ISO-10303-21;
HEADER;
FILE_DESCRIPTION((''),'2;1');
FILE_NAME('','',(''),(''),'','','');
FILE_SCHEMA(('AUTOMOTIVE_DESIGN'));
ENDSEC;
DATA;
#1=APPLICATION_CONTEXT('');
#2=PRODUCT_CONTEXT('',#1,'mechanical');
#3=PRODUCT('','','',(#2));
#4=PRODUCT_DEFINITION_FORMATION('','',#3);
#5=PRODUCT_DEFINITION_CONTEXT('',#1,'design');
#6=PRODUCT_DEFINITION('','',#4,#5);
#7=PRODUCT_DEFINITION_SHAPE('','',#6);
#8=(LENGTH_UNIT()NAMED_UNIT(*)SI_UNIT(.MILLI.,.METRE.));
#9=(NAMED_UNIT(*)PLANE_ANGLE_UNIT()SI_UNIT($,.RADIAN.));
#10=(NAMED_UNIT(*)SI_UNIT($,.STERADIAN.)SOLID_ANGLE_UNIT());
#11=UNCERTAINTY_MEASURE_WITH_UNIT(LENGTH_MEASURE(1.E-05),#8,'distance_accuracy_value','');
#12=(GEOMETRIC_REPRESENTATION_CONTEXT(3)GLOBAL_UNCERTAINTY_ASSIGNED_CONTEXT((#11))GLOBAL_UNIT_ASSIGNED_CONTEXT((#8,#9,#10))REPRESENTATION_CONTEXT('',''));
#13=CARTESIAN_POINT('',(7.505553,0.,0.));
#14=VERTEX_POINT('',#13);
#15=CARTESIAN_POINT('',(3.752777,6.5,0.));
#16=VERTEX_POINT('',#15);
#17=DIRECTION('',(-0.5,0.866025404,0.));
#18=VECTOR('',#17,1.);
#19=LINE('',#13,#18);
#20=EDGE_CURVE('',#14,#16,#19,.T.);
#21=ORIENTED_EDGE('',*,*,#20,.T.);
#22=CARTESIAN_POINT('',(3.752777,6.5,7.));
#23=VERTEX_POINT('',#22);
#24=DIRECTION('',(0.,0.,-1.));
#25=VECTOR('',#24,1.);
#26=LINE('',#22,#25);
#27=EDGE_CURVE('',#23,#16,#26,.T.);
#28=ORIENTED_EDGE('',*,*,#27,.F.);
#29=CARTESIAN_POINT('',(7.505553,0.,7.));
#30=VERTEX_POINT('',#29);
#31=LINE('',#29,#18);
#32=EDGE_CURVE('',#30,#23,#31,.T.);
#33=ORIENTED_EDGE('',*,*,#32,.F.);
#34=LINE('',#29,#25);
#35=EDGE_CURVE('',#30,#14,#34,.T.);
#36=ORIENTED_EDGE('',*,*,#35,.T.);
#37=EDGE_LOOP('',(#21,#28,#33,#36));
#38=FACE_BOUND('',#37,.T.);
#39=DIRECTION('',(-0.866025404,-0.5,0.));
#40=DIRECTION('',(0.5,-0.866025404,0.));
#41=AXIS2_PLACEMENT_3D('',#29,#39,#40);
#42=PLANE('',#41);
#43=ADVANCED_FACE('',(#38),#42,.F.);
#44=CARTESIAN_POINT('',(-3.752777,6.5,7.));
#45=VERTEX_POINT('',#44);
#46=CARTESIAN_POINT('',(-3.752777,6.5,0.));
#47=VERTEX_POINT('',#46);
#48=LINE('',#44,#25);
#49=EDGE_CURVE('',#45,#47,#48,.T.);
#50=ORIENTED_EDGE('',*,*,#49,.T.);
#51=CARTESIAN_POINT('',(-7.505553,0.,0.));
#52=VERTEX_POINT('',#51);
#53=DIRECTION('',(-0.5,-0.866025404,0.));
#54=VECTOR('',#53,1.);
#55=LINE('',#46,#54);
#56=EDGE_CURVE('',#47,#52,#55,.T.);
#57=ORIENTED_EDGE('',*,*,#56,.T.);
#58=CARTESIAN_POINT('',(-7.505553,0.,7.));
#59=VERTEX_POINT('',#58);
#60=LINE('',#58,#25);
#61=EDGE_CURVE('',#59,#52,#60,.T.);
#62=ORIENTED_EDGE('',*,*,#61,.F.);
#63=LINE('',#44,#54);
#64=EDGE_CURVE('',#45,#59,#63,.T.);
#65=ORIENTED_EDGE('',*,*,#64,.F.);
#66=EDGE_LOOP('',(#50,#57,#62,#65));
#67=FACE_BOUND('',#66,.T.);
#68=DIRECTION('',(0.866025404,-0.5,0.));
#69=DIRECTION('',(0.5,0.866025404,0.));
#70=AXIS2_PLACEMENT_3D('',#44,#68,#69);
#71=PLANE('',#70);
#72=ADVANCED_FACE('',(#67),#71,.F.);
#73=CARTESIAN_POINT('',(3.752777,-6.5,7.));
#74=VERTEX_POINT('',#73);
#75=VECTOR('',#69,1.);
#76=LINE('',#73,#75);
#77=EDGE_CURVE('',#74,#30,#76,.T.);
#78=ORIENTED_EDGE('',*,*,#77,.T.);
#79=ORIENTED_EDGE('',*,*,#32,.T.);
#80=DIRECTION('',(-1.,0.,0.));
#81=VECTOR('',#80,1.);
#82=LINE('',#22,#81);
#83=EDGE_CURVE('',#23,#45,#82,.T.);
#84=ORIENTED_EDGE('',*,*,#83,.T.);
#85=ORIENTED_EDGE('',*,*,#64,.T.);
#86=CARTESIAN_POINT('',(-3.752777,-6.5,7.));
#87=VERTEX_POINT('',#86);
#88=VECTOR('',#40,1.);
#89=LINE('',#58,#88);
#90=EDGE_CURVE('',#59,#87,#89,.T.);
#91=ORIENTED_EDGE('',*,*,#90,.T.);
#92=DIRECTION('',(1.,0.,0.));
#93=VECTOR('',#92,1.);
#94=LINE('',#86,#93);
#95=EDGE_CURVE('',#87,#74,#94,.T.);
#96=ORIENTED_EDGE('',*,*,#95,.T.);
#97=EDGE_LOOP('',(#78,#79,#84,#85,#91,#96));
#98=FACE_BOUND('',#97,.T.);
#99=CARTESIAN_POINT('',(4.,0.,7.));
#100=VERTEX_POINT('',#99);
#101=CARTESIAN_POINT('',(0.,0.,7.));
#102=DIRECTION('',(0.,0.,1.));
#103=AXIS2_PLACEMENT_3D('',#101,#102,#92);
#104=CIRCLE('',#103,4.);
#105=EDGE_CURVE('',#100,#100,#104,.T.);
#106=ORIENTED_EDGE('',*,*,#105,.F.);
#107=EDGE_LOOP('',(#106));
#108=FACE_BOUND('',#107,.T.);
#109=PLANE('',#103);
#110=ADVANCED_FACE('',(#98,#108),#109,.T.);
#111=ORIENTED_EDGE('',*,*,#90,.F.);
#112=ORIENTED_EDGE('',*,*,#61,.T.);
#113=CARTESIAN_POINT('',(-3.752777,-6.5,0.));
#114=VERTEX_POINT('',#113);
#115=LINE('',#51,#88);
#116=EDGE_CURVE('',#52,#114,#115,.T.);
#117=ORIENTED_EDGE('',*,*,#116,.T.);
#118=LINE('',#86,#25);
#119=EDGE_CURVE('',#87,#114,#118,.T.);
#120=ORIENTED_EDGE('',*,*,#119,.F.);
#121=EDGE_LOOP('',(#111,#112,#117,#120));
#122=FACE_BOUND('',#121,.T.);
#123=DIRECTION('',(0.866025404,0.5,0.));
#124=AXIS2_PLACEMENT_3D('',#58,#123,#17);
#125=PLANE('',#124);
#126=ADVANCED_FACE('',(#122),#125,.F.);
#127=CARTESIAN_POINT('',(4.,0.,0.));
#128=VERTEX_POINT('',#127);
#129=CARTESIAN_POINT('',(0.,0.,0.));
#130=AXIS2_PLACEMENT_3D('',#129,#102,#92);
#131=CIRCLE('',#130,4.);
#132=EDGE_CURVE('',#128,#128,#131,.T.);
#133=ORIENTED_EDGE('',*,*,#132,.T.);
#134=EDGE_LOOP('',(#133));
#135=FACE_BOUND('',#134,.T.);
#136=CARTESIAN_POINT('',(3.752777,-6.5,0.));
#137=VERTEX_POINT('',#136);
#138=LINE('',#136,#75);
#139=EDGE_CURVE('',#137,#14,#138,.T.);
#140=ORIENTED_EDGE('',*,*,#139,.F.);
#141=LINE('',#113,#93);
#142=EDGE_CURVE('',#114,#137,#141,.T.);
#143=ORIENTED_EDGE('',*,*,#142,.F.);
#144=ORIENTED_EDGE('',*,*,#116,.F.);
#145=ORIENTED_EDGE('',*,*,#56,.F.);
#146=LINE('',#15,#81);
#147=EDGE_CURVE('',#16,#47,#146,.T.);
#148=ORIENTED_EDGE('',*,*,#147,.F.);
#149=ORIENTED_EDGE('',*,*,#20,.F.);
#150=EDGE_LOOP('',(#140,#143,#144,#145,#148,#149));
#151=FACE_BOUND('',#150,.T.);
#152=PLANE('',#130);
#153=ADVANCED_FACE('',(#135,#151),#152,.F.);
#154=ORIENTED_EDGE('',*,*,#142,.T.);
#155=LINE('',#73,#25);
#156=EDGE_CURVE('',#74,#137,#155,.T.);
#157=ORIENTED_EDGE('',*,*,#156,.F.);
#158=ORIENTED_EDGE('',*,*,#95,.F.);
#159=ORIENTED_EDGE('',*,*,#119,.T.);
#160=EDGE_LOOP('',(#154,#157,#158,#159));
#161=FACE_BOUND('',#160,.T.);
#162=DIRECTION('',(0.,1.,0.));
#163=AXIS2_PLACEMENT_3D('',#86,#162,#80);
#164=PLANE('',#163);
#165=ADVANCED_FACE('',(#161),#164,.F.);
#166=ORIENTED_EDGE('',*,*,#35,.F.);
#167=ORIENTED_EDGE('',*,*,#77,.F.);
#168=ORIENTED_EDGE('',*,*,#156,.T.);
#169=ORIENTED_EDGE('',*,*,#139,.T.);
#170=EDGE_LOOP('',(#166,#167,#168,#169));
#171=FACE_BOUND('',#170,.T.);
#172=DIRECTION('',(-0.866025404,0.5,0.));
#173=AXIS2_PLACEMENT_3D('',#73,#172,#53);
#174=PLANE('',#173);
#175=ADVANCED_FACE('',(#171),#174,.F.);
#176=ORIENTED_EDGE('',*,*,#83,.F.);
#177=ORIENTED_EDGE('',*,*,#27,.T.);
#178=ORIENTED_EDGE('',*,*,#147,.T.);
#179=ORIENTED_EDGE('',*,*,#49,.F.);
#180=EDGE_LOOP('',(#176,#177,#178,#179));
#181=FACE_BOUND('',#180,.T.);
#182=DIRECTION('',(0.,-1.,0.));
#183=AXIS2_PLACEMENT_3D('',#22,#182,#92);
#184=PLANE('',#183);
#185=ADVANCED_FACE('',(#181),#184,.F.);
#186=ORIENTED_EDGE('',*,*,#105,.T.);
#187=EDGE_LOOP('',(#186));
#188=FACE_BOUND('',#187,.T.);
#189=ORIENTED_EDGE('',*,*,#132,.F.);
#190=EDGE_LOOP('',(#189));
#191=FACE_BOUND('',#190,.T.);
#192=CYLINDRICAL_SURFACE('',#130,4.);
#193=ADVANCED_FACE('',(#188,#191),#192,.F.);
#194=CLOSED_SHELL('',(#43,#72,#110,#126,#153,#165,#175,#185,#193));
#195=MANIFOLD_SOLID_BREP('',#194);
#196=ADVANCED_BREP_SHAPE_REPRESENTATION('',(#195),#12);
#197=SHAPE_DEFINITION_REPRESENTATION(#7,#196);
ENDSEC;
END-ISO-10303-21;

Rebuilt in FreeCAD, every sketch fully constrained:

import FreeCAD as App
import Part
import Sketcher
from FreeCAD import Vector
Q = App.Units.Quantity

doc = App.newDocument("Part")
body = doc.addObject("PartDesign::Body", "Body")

# Sketch on XY plane
sketch1 = body.newObject("Sketcher::SketchObject", "Sketch")
sketch1.AttachmentSupport = (doc.getObject("XY_Plane"), [""])
sketch1.MapMode = "FlatFace"
sketch1.addGeometry([
    Part.LineSegment(Vector(8, 0, 0), Vector(4, 6, 0)),  # 0
    Part.LineSegment(Vector(4, 6, 0), Vector(-4, 6, 0)),  # 1
    Part.LineSegment(Vector(-4, 6, 0), Vector(-8, 0, 0)),  # 2
    Part.LineSegment(Vector(-8, 0, 0), Vector(-4, -6, 0)),  # 3
    Part.LineSegment(Vector(-4, -6, 0), Vector(4, -6, 0)),  # 4
    Part.LineSegment(Vector(4, -6, 0), Vector(8, 0, 0)),  # 5
], False)
sketch1.addConstraint([
    Sketcher.Constraint("Coincident", 0, 2, 1, 1),
    Sketcher.Constraint("Coincident", 1, 2, 2, 1),
    Sketcher.Constraint("Coincident", 2, 2, 3, 1),
    Sketcher.Constraint("Coincident", 3, 2, 4, 1),
    Sketcher.Constraint("Coincident", 4, 2, 5, 1),
    Sketcher.Constraint("Coincident", 5, 2, 0, 1),
    Sketcher.Constraint("Horizontal", 1),
    Sketcher.Constraint("Horizontal", 4),
    Sketcher.Constraint("Symmetric", 0, 2, 3, 2, -1, 1),
    Sketcher.Constraint("Symmetric", 2, 2, 5, 2, -1, 1),
    Sketcher.Constraint("PointOnObject", 2, 2, -1),
    Sketcher.Constraint("Parallel", 2, 5),
    Sketcher.Constraint("Vertical", 1, 2, 3, 2),
    Sketcher.Constraint("Angle", 0, Q("120 deg")),
    Sketcher.Constraint("DistanceY", 3, 2, 1, 2, 13.0),
    Sketcher.Constraint("DistanceX", 1, 2, 1, 1, 7.505554),
])
pad1 = body.newObject("PartDesign::Pad", "Pad")
pad1.Profile = sketch1
pad1.Length = 7

# Sketch on XY plane
sketch2 = body.newObject("Sketcher::SketchObject", "Sketch001")
sketch2.AttachmentSupport = (doc.getObject("XY_Plane"), [""])
sketch2.MapMode = "FlatFace"
sketch2.AttachmentOffset = App.Placement(Vector(0, 0, 7), App.Rotation())
sketch2.addGeometry(Part.Circle(Vector(0, 0, 0), Vector(0, 0, 1), 4), False)
sketch2.addConstraint([
    Sketcher.Constraint("Coincident", 0, 3, -1, 1),
    Sketcher.Constraint("Diameter", 0, 8.0),
])
pocket1 = body.newObject("PartDesign::Pocket", "Pocket")
pocket1.Profile = sketch2
pocket1.Type = "ThroughAll"

doc.recompute()
